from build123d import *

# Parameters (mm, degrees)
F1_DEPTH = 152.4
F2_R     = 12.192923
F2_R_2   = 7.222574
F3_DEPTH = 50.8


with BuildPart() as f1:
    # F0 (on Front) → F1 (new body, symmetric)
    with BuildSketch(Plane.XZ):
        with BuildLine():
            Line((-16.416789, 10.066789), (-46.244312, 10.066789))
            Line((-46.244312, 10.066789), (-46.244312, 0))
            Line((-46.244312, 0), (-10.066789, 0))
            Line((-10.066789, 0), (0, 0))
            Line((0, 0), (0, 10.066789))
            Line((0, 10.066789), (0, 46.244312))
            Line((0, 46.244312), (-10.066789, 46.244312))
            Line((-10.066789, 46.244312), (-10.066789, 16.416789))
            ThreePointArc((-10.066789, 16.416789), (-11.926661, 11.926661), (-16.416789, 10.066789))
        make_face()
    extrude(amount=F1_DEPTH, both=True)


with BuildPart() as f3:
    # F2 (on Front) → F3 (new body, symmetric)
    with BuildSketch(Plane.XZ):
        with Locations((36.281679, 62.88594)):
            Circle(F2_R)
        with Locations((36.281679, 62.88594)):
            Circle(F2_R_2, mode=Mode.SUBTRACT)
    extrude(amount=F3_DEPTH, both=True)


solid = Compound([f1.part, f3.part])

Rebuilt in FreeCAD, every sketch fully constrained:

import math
import FreeCAD as App
import Part
import Sketcher

V = App.Vector
Q = App.Units.Quantity

doc = App.newDocument("Part")
body = doc.addObject("PartDesign::Body", "Body")

sketch1 = body.newObject("Sketcher::SketchObject", "Sketch")
sketch1.AttachmentSupport = (doc.getObject("XZ_Plane"), [""])
sketch1.MapMode = "FlatFace"
sketch1.addGeometry(Part.LineSegment(V(-16, 10, 0), V(-46, 10, 0)), False)
sketch1.addGeometry(Part.LineSegment(V(-46, 10, 0), V(-46, 0, 0)), False)
sketch1.addGeometry(Part.LineSegment(V(-46, 0, 0), V(0, 0, 0)), False)
sketch1.addGeometry(Part.LineSegment(V(0, 0, 0), V(0, 46, 0)), False)
sketch1.addGeometry(Part.LineSegment(V(0, 46, 0), V(-10, 46, 0)), False)
sketch1.addGeometry(Part.LineSegment(V(-10, 46, 0), V(-10, 16, 0)), False)
sketch1.addGeometry(Part.ArcOfCircle(Part.Circle(V(-16, 16, 0), V(0, 0, 1), 6), math.radians(-90), math.radians(0)), False)
sketch1.addConstraint(Sketcher.Constraint("Coincident", 0, 2, 1, 1))
sketch1.addConstraint(Sketcher.Constraint("Coincident", 1, 2, 2, 1))
sketch1.addConstraint(Sketcher.Constraint("Coincident", 2, 2, 3, 1))
sketch1.addConstraint(Sketcher.Constraint("Coincident", 3, 2, 4, 1))
sketch1.addConstraint(Sketcher.Constraint("Coincident", 4, 2, 5, 1))
sketch1.addConstraint(Sketcher.Constraint("Tangent", 5, 2, 6, 2))
sketch1.addConstraint(Sketcher.Constraint("Tangent", 6, 1, 0, 1))
sketch1.addConstraint(Sketcher.Constraint("Horizontal", 0))
sketch1.addConstraint(Sketcher.Constraint("Vertical", 1))
sketch1.addConstraint(Sketcher.Constraint("Horizontal", 2))
sketch1.addConstraint(Sketcher.Constraint("Vertical", 3))
sketch1.addConstraint(Sketcher.Constraint("Horizontal", 4))
sketch1.addConstraint(Sketcher.Constraint("Vertical", 5))
sketch1.addConstraint(Sketcher.Constraint("Coincident", 2, 2, -1, 1))
sketch1.addConstraint(Sketcher.Constraint("Equal", 4, 1))
sketch1.addConstraint(Sketcher.Constraint("Equal", 2, 3))
sketch1.addConstraint(Sketcher.Constraint("Radius", 6, Q("0.25 in")))
sketch1.addConstraint(Sketcher.Constraint("DistanceX", 4, 2, 4, 1, 10.066789))
sketch1.addConstraint(Sketcher.Constraint("DistanceX", 0, 2, 0, 1, 29.827523))
pad1 = body.newObject("PartDesign::Pad", "Pad")
pad1.Profile = sketch1
pad1.Length = Q("12 in")
pad1.Midplane = True
body2 = doc.addObject("PartDesign::Body", "Body001")

sketch2 = body2.newObject("Sketcher::SketchObject", "Sketch001")
sketch2.AttachmentSupport = (doc.getObject("XZ_Plane001"), [""])
sketch2.MapMode = "FlatFace"
sketch2.addGeometry(Part.Circle(V(36, 63, 0), V(0, 0, 1), 12), False)
sketch2.addGeometry(Part.Circle(V(36, 63, 0), V(0, 0, 1), 7), False)
sketch2.addConstraint(Sketcher.Constraint("Coincident", 1, 3, 0, 3))
sketch2.addConstraint(Sketcher.Constraint("Diameter", 0, 24.385846))
sketch2.addConstraint(Sketcher.Constraint("Diameter", 1, 14.445148))
sketch2.addConstraint(Sketcher.Constraint("DistanceX", -1, 1, 0, 3, 36.281679))
sketch2.addConstraint(Sketcher.Constraint("DistanceY", -1, 1, 0, 3, 62.88594))
pad2 = body2.newObject("PartDesign::Pad", "Pad001")
pad2.Profile = sketch2
pad2.Length = Q("4 in")
pad2.Midplane = True

doc.recompute()
